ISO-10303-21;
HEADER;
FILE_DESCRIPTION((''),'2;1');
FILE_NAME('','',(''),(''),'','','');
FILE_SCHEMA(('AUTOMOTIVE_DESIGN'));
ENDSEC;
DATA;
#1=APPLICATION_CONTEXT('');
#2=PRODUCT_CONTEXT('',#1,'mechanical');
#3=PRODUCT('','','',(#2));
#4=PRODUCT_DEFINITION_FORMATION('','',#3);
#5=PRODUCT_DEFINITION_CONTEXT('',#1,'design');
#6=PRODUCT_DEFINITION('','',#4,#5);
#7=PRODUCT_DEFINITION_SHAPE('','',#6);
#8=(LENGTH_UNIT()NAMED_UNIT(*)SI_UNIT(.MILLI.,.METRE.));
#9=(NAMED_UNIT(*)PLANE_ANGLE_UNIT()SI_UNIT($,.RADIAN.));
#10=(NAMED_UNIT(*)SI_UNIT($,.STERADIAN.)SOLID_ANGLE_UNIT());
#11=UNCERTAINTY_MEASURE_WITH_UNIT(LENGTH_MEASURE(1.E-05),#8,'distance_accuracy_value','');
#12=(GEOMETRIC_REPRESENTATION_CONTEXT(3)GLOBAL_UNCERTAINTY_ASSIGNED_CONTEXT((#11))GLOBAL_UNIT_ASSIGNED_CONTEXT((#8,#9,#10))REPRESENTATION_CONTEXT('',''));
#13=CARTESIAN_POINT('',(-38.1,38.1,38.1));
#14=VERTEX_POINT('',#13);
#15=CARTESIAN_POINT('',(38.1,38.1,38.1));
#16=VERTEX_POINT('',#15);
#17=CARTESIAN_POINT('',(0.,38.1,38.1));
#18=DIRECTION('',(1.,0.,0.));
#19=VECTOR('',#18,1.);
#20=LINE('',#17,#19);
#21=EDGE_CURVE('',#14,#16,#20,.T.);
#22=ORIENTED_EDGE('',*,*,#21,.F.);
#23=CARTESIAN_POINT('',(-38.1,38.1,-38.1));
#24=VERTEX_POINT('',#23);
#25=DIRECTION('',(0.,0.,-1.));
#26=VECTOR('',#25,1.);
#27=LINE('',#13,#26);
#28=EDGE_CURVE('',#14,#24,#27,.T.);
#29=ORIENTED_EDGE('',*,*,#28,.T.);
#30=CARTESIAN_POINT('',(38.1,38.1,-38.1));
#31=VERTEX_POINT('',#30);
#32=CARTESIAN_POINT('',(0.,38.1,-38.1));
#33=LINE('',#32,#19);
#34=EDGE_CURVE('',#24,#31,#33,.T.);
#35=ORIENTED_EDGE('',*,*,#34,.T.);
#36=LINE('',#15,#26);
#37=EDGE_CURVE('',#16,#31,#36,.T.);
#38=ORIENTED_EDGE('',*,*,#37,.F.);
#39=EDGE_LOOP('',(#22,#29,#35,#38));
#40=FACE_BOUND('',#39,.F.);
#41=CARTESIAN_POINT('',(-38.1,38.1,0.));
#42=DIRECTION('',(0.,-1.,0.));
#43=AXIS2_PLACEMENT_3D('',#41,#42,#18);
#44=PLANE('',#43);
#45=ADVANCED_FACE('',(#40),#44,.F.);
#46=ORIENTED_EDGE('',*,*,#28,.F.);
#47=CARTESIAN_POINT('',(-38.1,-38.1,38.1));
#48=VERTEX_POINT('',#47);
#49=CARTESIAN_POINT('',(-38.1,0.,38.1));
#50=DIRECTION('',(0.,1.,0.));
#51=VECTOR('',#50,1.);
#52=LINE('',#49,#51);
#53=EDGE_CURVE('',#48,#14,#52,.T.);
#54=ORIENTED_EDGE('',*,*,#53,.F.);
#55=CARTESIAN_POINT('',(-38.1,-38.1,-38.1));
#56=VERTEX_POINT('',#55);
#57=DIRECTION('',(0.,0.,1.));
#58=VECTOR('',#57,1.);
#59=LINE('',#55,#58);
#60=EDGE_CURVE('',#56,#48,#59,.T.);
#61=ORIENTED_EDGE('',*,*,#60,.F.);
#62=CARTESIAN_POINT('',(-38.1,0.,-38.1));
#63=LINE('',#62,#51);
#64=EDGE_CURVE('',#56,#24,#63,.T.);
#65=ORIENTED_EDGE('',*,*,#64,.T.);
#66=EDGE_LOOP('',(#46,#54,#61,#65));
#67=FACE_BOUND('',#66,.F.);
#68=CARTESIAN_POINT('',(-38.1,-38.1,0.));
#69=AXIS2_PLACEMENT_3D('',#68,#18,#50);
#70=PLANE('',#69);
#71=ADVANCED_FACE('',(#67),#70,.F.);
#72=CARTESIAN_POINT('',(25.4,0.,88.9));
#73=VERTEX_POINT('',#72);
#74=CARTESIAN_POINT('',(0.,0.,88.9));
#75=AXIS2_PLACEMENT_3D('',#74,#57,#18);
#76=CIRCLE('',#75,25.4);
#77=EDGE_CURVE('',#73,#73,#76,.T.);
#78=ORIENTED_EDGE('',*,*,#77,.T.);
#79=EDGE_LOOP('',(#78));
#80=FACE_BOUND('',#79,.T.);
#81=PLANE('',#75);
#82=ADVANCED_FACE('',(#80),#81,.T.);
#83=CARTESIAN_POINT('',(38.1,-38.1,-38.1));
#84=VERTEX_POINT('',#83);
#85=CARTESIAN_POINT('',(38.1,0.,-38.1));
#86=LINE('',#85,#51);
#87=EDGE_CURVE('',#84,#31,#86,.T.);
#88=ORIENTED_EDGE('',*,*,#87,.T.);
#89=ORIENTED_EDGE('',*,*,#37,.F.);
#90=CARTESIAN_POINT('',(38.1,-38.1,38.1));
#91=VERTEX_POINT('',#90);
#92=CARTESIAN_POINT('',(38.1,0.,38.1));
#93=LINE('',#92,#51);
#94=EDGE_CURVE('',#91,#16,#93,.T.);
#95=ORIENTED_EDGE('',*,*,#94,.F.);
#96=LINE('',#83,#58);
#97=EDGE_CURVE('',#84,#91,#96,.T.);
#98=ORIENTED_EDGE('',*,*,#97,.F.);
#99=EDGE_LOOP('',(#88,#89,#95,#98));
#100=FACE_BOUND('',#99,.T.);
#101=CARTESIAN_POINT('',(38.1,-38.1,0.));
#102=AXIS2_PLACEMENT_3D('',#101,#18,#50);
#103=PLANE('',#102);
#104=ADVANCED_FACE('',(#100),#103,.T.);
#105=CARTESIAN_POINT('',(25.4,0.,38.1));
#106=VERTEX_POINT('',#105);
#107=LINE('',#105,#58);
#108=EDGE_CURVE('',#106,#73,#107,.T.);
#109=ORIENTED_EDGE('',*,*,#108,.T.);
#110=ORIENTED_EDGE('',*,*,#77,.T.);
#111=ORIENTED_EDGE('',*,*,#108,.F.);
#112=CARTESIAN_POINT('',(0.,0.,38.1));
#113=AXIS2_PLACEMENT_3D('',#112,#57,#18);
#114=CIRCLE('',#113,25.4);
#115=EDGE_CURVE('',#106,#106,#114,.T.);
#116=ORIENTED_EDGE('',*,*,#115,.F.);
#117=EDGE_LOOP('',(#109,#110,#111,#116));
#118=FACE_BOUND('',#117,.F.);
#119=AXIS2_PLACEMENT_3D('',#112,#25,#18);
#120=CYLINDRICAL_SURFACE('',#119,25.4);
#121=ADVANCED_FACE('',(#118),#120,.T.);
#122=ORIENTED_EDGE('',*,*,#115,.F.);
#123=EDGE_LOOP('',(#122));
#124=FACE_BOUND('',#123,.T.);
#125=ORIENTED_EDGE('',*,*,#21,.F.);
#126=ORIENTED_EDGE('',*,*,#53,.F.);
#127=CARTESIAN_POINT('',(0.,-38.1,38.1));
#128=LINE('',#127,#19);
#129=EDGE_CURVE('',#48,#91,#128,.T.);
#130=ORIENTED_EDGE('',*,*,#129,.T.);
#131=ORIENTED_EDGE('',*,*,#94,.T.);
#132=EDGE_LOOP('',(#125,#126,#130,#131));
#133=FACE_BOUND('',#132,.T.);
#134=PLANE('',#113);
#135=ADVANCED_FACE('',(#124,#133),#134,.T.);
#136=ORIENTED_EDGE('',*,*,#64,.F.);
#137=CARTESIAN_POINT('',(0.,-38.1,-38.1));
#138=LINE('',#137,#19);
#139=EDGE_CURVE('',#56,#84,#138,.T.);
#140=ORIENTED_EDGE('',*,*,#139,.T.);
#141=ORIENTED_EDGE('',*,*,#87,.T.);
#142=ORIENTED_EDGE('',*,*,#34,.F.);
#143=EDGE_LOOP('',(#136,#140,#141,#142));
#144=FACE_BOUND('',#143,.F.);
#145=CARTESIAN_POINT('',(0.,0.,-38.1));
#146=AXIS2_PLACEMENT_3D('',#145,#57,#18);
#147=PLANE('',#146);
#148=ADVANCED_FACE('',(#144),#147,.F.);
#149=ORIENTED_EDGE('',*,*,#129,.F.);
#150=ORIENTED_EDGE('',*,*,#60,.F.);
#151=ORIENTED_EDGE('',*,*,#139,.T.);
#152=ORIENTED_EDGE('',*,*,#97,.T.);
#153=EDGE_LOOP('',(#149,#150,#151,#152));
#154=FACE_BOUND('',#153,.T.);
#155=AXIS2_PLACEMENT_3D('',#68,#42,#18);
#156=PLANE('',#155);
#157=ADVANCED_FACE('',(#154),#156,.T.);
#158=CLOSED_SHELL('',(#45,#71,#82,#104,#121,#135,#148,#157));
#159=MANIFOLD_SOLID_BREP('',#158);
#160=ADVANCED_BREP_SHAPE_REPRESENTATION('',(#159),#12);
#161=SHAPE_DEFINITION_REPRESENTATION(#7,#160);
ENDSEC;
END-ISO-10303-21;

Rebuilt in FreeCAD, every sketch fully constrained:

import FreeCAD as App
import Part
import Sketcher
Q = App.Units.Quantity

doc = App.newDocument("Part")
body = doc.addObject("PartDesign::Body", "Body")

sketch1 = doc.addObject("Sketcher::SketchObject", "Sketch")
body.addObject(sketch1)
sketch1.AttachmentSupport = (doc.XY_Plane, [""])
sketch1.MapMode = "FlatFace"
sketch1.addGeometry([
    Part.LineSegment(App.Vector(-38, 38, 0), App.Vector(-38, -38, 0)),
    Part.LineSegment(App.Vector(-38, -38, 0), App.Vector(38, -38, 0)),
    Part.LineSegment(App.Vector(38, -38, 0), App.Vector(38, 38, 0)),
    Part.LineSegment(App.Vector(38, 38, 0), App.Vector(-38, 38, 0)),
], False)
sketch1.addConstraint([
    Sketcher.Constraint("Coincident", 0, 2, 1, 1),
    Sketcher.Constraint("Coincident", 1, 2, 2, 1),
    Sketcher.Constraint("Coincident", 2, 2, 3, 1),
    Sketcher.Constraint("Coincident", 3, 2, 0, 1),
    Sketcher.Constraint("Vertical", 0),
    Sketcher.Constraint("Horizontal", 1),
    Sketcher.Constraint("Vertical", 2),
    Sketcher.Constraint("Horizontal", 3),
    Sketcher.Constraint("Symmetric", 0, 2, 2, 2, -1, 1),
    Sketcher.Constraint("Equal", 3, 0),
    Sketcher.Constraint("DistanceX", 1, 1, 1, 2, Q("3 in")),
])
pad1 = doc.addObject("PartDesign::Pad", "Pad")
body.addObject(pad1)
pad1.Profile = sketch1
pad1.Length = Q("3 in")
pad1.Midplane = True

sketch2 = doc.addObject("Sketcher::SketchObject", "Sketch001")
body.addObject(sketch2)
sketch2.AttachmentSupport = (doc.XY_Plane, [""])
sketch2.MapMode = "FlatFace"
sketch2.AttachmentOffset = App.Placement(App.Vector(0, 0, 1.5 * 25.4), App.Rotation())
sketch2.addGeometry(Part.Circle(App.Vector(0, 0, 0), App.Vector(0, 0, 1), 25), False)
sketch2.addConstraint([
    Sketcher.Constraint("Coincident", 0, 3, -1, 1),
    Sketcher.Constraint("Diameter", 0, Q("2 in")),
])
pad2 = doc.addObject("PartDesign::Pad", "Pad001")
body.addObject(pad2)
pad2.Profile = sketch2
pad2.Length = Q("2 in")

doc.recompute()
